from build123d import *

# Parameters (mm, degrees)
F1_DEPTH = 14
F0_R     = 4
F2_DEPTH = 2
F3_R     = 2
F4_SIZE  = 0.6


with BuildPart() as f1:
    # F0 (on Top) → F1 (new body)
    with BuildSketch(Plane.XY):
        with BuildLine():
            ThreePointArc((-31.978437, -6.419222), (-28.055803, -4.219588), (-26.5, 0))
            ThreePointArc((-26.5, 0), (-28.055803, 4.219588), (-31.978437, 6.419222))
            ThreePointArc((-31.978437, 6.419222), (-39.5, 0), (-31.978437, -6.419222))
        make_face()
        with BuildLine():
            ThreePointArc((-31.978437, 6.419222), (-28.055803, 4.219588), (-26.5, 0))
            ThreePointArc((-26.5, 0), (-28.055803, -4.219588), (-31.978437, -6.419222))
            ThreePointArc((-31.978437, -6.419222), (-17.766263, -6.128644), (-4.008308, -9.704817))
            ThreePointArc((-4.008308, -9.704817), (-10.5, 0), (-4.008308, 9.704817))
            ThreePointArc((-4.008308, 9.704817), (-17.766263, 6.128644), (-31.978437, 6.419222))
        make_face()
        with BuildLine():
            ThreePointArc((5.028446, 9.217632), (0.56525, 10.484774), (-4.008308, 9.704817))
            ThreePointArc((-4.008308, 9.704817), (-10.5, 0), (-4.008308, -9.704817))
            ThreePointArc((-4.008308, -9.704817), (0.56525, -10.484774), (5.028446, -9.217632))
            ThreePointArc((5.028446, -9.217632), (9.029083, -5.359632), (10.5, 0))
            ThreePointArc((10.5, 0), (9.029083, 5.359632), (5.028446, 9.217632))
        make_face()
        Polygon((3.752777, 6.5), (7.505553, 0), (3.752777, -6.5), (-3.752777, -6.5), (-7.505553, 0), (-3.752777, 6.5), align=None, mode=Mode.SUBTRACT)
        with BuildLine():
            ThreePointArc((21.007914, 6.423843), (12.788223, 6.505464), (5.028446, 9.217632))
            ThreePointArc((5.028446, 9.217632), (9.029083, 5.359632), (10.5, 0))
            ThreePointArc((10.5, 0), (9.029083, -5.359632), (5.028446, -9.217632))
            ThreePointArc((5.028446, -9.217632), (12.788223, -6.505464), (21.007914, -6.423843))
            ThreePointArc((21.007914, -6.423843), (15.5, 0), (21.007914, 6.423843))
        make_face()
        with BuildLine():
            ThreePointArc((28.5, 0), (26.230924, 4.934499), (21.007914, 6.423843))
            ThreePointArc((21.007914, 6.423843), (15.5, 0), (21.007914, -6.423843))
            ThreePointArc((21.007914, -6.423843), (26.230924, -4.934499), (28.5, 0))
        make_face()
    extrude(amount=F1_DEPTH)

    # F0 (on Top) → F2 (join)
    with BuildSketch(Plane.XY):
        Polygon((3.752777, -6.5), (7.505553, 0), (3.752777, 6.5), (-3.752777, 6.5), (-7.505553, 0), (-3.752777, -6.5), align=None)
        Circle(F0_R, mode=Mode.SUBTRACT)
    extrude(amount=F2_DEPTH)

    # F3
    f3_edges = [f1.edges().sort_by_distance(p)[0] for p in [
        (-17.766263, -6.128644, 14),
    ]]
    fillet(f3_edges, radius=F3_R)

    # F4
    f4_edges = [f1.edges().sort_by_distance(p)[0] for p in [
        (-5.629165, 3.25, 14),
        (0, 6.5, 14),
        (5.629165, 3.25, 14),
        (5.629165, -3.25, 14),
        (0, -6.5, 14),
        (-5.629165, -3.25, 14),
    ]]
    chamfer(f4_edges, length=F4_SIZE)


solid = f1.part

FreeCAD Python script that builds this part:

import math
import FreeCAD as App
import Part
import Sketcher
from FreeCAD import Vector
Q = App.Units.Quantity


def edges_at(feature, points):
    """Names of the edges that pass closest to the given points."""
    edges = feature.Shape.Edges
    near = lambda p: min(range(len(edges)), key=lambda i: edges[i].distToShape(Part.Vertex(*p))[0])
    return sorted({f"Edge{near(p) + 1}" for p in points})

doc = App.newDocument("Part")
body = doc.addObject("PartDesign::Body", "Body")

sketch1 = body.newObject("Sketcher::SketchObject", "Sketch")
sketch1.AttachmentSupport = (doc.getObject("XY_Plane"), [""])
sketch1.MapMode = "FlatFace"
sketch1.addGeometry([
    Part.ArcOfCircle(Part.Circle(Vector(-33, 0, 0), Vector(0, 0, 1), 7), math.radians(81), math.radians(279)),
    Part.ArcOfCircle(Part.Circle(Vector(-24, -58, 0), Vector(0, 0, 1), 52), math.radians(68), math.radians(99)),
    Part.ArcOfCircle(Part.Circle(Vector(0, 0, 0), Vector(0, 0, 1), 11), math.radians(-112), math.radians(-61)),
    Part.ArcOfCircle(Part.Circle(Vector(17, -31, 0), Vector(0, 0, 1), 25), math.radians(81), math.radians(119)),
    Part.ArcOfCircle(Part.Circle(Vector(22, 0, 0), Vector(0, 0, 1), 6), math.radians(-99), math.radians(0)),
    Part.ArcOfCircle(Part.Circle(Vector(22, 0, 0), Vector(0, 0, 1), 6), math.radians(0), math.radians(99)),
    Part.ArcOfCircle(Part.Circle(Vector(17, 31, 0), Vector(0, 0, 1), 25), math.radians(-119), math.radians(-81)),
    Part.ArcOfCircle(Part.Circle(Vector(0, 0, 0), Vector(0, 0, 1), 11), math.radians(61), math.radians(112)),
    Part.ArcOfCircle(Part.Circle(Vector(-24, 58, 0), Vector(0, 0, 1), 52), math.radians(-99), math.radians(-68)),
    Part.LineSegment(Vector(-4, 6, 0), Vector(4, 6, 0)),
    Part.LineSegment(Vector(4, 6, 0), Vector(8, 0, 0)),
    Part.LineSegment(Vector(8, 0, 0), Vector(4, -6, 0)),
    Part.LineSegment(Vector(4, -6, 0), Vector(-4, -6, 0)),
    Part.LineSegment(Vector(-4, -6, 0), Vector(-8, 0, 0)),
    Part.LineSegment(Vector(-8, 0, 0), Vector(-4, 6, 0)),
], False)
sketch1.addConstraint([
    Sketcher.Constraint("Tangent", 0, 2, 1, 2),
    Sketcher.Constraint("Tangent", 1, 1, 2, 1),
    Sketcher.Constraint("Tangent", 2, 2, 3, 2),
    Sketcher.Constraint("Tangent", 3, 1, 4, 1),
    Sketcher.Constraint("Tangent", 4, 2, 5, 1),
    Sketcher.Constraint("Tangent", 5, 2, 6, 2),
    Sketcher.Constraint("Tangent", 6, 1, 7, 1),
    Sketcher.Constraint("Tangent", 7, 2, 8, 2),
    Sketcher.Constraint("Tangent", 8, 1, 0, 1),
    Sketcher.Constraint("Coincident", 9, 2, 10, 1),
    Sketcher.Constraint("Coincident", 10, 2, 11, 1),
    Sketcher.Constraint("Coincident", 11, 2, 12, 1),
    Sketcher.Constraint("Coincident", 12, 2, 13, 1),
    Sketcher.Constraint("Coincident", 13, 2, 14, 1),
    Sketcher.Constraint("Coincident", 14, 2, 9, 1),
    Sketcher.Constraint("Horizontal", 9),
    Sketcher.Constraint("Horizontal", 12),
    Sketcher.Constraint("Coincident", 2, 3, -1, 1),
    Sketcher.Constraint("Coincident", 7, 3, -1, 1),
    Sketcher.Constraint("Equal", 0, 4),
    Sketcher.Constraint("Equal", 4, 5),
    Sketcher.Constraint("Equal", 3, 6),
    Sketcher.Constraint("Equal", 2, 7),
    Sketcher.Constraint("Equal", 1, 8),
    Sketcher.Constraint("Symmetric", 9, 2, 12, 2, -1, 1),
    Sketcher.Constraint("Symmetric", 10, 2, 13, 2, -1, 1),
    Sketcher.Constraint("PointOnObject", 0, 3, -1),
    Sketcher.Constraint("PointOnObject", 4, 3, -1),
    Sketcher.Constraint("PointOnObject", 4, 2, -1),
    Sketcher.Constraint("PointOnObject", 10, 2, -1),
    Sketcher.Constraint("Parallel", 11, 14),
    Sketcher.Constraint("Vertical", 9, 2, 11, 2),
    Sketcher.Constraint("Radius", 0, 6.5),
    Sketcher.Constraint("Angle", 10, Q("-60.000005 deg")),
    Sketcher.Constraint("DistanceX", 0, 3, -1, 1, 33.0),
    Sketcher.Constraint("DistanceX", -1, 1, 4, 3, 22.0),
    Sketcher.Constraint("DistanceY", -1, 1, 9, 2, 6.5),
    Sketcher.Constraint("Radius", 1, 51.901569),
    Sketcher.Constraint("Radius", 2, 10.500007),
    Sketcher.Constraint("Radius", 3, 25.302856),
    Sketcher.Constraint("DistanceX", 9, 1, 9, 2, 7.505554),
])
pad1 = body.newObject("PartDesign::Pad", "Pad")
pad1.Profile = sketch1
pad1.Length = 14

sketch2 = body.newObject("Sketcher::SketchObject", "Sketch001")
sketch2.AttachmentSupport = (doc.getObject("XY_Plane"), [""])
sketch2.MapMode = "FlatFace"
sketch2.addGeometry([
    Part.LineSegment(Vector(3.8, -6.5, 0), Vector(7.5, 0, 0)),
    Part.LineSegment(Vector(7.5, 0, 0), Vector(3.8, 6.5, 0)),
    Part.LineSegment(Vector(3.8, 6.5, 0), Vector(-3.8, 6.5, 0)),
    Part.LineSegment(Vector(-3.8, 6.5, 0), Vector(-7.5, 0, 0)),
    Part.LineSegment(Vector(-7.5, 0, 0), Vector(-3.8, -6.5, 0)),
    Part.LineSegment(Vector(-3.8, -6.5, 0), Vector(3.8, -6.5, 0)),
    Part.Circle(Vector(0, 0, 0), Vector(0, 0, 1), 4),
], False)
sketch2.addConstraint([
    Sketcher.Constraint("Coincident", 0, 2, 1, 1),
    Sketcher.Constraint("Coincident", 1, 2, 2, 1),
    Sketcher.Constraint("Coincident", 2, 2, 3, 1),
    Sketcher.Constraint("Coincident", 3, 2, 4, 1),
    Sketcher.Constraint("Coincident", 4, 2, 5, 1),
    Sketcher.Constraint("Coincident", 5, 2, 0, 1),
    Sketcher.Constraint("Horizontal", 2),
    Sketcher.Constraint("Horizontal", 5),
    Sketcher.Constraint("Coincident", 6, 3, -1, 1),
    Sketcher.Constraint("Symmetric", 0, 2, 3, 2, -1, 1),
    Sketcher.Constraint("Symmetric", 1, 2, 4, 2, -1, 1),
    Sketcher.Constraint("PointOnObject", 0, 2, -1),
    Sketcher.Constraint("Parallel", 0, 3),
    Sketcher.Constraint("Vertical", 2, 2, 4, 2),
    Sketcher.Constraint("Diameter", 6, 8.0),
    Sketcher.Constraint("Angle", 0, Q("60.000005 deg")),
    Sketcher.Constraint("DistanceY", 4, 2, 2, 2, 13.0),
    Sketcher.Constraint("DistanceX", 2, 2, 2, 1, 7.505554),
])
pad2 = body.newObject("PartDesign::Pad", "Pad001")
pad2.Profile = sketch2
pad2.Length = 2
doc.recompute()

fillet = body.newObject("PartDesign::Fillet", "Fillet")
fillet.Base = (pad2, edges_at(pad2, [(-17.766, -6.129, 14)]))
fillet.Radius = 2
doc.recompute()

chamfer = body.newObject("PartDesign::Chamfer", "Chamfer")
chamfer.Base = (fillet, edges_at(fillet, [
    (-5.629, 3.25, 14),
    (0, 6.5, 14),
    (5.629, 3.25, 14),
    (5.629, -3.25, 14),
    (0, -6.5, 14),
    (-5.629, -3.25, 14),
]))
chamfer.Size = 0.6

doc.recompute()
